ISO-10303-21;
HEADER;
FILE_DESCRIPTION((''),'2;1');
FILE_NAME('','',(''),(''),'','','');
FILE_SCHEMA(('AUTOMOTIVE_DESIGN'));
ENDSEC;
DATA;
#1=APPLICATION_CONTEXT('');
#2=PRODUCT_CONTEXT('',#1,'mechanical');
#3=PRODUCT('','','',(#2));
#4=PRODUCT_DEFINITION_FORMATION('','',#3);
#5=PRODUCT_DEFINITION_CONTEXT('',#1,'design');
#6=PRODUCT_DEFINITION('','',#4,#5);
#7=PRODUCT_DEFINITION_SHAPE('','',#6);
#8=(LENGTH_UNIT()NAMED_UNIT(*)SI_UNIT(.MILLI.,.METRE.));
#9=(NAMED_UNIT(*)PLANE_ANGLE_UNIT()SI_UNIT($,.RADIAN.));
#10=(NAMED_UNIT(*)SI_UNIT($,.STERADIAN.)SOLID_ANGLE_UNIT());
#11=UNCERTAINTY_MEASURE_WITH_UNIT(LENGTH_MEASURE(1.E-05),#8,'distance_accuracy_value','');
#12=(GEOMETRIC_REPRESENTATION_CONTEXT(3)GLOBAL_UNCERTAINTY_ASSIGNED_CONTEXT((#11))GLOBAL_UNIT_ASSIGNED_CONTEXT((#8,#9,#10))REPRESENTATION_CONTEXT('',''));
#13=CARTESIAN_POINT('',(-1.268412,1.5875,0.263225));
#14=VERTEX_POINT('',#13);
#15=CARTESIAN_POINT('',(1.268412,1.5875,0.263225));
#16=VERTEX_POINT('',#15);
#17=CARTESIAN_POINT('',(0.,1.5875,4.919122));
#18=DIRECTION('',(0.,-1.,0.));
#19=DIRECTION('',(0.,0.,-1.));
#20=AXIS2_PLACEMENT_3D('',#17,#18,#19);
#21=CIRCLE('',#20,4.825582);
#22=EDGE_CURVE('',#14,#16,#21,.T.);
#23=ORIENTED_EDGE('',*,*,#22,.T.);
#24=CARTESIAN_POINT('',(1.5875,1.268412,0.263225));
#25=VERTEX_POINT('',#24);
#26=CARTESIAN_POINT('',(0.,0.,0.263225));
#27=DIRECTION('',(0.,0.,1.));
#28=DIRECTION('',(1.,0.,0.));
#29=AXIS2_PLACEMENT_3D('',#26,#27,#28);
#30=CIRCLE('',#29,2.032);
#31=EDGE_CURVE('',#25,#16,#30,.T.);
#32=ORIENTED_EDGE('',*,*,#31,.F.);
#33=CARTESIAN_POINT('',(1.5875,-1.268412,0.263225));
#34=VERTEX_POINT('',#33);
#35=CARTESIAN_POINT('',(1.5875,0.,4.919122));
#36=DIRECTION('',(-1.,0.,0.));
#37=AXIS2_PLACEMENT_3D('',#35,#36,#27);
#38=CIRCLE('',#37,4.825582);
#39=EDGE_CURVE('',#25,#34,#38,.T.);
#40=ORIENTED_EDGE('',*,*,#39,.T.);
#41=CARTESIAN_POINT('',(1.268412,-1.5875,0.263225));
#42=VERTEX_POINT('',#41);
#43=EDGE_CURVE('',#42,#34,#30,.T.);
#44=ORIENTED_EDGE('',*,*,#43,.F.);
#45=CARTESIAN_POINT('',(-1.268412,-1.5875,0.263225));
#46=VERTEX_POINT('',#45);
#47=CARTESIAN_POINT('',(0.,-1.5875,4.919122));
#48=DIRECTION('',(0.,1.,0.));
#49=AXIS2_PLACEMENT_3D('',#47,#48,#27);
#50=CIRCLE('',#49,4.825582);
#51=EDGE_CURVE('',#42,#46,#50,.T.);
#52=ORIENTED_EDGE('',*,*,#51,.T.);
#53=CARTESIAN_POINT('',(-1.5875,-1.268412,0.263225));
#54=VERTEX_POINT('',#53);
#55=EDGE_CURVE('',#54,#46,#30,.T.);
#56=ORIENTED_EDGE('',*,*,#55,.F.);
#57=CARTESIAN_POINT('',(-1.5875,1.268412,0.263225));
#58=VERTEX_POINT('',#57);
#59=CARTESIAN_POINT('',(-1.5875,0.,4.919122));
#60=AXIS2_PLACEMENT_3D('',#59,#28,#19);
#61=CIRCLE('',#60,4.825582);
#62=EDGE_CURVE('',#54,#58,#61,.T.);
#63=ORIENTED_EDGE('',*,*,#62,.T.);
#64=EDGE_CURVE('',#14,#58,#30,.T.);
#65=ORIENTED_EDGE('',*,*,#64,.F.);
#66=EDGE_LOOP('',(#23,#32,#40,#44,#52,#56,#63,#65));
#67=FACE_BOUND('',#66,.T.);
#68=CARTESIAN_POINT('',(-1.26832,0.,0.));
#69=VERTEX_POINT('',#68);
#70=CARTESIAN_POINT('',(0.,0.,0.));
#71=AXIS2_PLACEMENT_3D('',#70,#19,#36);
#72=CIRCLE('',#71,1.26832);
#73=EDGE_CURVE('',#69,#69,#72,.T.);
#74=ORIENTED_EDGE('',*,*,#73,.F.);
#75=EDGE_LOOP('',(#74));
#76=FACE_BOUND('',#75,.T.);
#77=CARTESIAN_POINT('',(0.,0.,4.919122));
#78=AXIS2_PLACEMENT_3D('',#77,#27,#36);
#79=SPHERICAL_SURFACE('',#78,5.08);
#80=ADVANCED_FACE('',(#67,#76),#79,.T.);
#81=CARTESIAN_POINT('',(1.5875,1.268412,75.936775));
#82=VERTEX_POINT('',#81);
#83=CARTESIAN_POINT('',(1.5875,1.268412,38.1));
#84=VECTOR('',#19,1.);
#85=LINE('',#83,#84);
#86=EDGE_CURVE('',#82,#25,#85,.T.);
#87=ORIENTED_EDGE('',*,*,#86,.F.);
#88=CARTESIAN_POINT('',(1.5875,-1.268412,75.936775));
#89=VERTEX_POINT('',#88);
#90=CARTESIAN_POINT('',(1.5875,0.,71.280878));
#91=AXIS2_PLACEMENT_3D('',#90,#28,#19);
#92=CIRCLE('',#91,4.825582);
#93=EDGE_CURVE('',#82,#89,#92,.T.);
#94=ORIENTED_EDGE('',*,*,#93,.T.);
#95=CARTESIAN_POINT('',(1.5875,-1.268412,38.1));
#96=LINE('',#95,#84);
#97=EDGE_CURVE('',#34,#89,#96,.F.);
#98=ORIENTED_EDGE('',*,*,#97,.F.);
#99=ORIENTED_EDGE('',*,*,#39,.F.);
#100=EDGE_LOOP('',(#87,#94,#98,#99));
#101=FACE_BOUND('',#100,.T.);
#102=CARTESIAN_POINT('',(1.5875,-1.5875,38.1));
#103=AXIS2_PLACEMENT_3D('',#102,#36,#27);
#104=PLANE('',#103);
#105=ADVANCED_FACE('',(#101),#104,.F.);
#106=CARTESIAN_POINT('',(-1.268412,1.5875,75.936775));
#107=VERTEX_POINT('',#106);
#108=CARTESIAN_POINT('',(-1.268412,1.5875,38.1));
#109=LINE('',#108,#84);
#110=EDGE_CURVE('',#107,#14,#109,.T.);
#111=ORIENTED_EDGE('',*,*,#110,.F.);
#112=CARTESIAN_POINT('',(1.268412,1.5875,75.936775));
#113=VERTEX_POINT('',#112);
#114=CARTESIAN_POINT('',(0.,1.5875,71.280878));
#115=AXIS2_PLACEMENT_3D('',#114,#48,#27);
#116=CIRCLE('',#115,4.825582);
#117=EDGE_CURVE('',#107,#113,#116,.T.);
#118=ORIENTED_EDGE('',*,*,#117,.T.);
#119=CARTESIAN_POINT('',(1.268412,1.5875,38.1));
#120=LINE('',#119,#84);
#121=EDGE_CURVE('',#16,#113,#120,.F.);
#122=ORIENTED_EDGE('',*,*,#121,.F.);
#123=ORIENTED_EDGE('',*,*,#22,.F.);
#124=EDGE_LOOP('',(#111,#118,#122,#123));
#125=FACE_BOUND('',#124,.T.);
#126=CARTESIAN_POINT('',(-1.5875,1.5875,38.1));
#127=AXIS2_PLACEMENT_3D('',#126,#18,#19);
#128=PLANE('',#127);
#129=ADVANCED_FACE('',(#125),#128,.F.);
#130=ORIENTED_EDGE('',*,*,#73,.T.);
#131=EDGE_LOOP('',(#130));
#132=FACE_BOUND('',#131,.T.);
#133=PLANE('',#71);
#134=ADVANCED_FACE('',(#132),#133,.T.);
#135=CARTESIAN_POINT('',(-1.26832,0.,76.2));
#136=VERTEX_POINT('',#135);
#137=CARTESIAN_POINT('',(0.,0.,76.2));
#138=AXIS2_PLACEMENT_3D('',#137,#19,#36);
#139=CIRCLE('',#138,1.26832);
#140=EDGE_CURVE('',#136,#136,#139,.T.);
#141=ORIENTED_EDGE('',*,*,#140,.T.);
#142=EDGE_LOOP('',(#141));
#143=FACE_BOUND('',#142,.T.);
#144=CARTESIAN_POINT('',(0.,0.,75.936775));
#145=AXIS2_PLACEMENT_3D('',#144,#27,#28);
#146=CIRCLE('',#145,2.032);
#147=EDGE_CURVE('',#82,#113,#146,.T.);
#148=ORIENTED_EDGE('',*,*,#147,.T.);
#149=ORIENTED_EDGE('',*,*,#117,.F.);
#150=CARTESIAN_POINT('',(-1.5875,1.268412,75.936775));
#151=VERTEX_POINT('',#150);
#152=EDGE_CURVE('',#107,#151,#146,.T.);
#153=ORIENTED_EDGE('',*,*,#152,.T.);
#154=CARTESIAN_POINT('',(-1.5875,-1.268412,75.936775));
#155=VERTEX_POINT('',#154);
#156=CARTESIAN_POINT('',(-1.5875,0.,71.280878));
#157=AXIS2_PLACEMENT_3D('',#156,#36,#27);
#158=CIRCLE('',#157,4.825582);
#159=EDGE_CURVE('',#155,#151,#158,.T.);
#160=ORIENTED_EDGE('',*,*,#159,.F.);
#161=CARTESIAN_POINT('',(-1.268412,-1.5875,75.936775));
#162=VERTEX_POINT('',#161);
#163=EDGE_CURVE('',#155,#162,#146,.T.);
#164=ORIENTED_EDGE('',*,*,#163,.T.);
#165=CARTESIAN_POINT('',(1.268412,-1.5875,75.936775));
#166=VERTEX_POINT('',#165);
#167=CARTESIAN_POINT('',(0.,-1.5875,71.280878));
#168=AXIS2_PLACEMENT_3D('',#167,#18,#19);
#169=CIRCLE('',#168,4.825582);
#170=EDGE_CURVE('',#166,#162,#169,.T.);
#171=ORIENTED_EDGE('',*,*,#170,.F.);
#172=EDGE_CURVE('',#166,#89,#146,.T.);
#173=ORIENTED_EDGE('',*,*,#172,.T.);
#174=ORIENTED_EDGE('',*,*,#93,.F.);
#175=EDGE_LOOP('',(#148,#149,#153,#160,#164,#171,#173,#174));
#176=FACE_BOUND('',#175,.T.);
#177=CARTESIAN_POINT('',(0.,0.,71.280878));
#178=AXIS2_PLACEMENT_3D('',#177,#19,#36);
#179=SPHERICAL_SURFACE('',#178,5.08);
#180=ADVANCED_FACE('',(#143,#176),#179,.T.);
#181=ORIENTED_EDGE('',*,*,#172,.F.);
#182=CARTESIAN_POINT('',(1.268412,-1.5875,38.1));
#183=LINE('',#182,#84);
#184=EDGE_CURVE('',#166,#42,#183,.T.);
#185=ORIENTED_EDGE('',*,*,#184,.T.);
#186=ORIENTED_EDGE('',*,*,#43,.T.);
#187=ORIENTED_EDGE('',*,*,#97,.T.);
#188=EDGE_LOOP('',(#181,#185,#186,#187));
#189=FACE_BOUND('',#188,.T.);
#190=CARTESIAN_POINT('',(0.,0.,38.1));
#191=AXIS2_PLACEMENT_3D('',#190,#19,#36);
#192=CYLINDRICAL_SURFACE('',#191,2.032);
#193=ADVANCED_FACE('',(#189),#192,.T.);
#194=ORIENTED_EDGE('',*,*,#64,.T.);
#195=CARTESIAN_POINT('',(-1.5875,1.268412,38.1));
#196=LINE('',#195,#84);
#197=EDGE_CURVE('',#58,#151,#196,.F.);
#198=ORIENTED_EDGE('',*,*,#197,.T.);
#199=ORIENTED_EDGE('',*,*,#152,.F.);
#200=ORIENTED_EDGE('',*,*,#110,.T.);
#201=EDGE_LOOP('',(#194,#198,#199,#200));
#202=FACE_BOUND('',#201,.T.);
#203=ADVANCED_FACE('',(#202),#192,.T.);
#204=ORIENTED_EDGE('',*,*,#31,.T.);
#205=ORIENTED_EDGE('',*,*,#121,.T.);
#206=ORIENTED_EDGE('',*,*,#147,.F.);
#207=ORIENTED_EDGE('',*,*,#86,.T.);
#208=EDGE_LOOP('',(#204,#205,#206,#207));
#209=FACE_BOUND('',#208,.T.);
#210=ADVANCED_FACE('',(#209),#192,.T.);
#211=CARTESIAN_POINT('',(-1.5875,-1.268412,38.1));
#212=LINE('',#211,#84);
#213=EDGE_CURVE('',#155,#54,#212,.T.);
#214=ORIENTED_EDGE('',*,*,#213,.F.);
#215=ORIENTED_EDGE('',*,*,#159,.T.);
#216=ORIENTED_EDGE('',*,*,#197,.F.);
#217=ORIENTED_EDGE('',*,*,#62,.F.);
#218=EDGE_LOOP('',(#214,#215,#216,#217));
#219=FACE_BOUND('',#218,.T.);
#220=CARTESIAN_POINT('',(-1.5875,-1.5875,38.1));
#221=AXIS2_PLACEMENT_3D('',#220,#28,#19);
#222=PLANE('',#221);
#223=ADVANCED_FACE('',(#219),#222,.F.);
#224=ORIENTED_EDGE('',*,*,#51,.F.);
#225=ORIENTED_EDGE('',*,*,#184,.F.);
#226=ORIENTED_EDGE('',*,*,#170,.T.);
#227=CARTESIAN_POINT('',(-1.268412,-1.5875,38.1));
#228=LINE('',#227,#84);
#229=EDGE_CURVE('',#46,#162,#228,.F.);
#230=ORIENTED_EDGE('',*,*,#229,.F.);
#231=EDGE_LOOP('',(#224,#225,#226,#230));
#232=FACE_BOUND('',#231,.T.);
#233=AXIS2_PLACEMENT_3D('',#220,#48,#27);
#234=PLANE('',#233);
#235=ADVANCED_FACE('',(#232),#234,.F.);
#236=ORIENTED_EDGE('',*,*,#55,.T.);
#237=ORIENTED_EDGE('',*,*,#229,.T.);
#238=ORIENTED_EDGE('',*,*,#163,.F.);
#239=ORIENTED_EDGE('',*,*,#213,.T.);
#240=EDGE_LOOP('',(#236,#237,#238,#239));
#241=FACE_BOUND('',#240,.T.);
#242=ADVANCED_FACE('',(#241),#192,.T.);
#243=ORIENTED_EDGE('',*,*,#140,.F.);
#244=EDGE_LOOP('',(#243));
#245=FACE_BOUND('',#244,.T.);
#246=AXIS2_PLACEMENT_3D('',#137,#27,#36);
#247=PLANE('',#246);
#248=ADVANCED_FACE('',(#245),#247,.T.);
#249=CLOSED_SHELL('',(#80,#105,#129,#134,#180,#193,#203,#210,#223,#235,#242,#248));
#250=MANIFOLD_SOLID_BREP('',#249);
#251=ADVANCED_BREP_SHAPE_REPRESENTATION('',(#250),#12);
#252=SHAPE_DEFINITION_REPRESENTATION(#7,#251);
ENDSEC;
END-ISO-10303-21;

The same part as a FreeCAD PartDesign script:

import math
import FreeCAD as App
import Part
import Sketcher

V = App.Vector
Q = App.Units.Quantity


def add_polygon(sketch, points):
    """Adds a closed chain of lines whose ends are joined by coincident constraints."""
    first, n = sketch.GeometryCount, len(points)
    for a, b in zip(points, points[1:] + points[:1]):
        sketch.addGeometry(Part.LineSegment(App.Vector(*a, 0), App.Vector(*b, 0)), False)
    for i in range(n):
        sketch.addConstraint(Sketcher.Constraint("Coincident", first + i, 2, first + (i + 1) % n, 1))

doc = App.newDocument("Part")
body = doc.addObject("PartDesign::Body", "Body")

# Sketch on XY plane
sketch1 = body.newObject("Sketcher::SketchObject", "Sketch")
sketch1.AttachmentSupport = (doc.getObject("XY_Plane"), [""])
sketch1.MapMode = "FlatFace"
add_polygon(sketch1, [(-1.6, 1.6), (-1.6, -1.6), (1.6, -1.6), (1.6, 1.6)])  # lines 0-3
sketch1.addConstraint([
    Sketcher.Constraint("Vertical", 0),
    Sketcher.Constraint("Horizontal", 1),
    Sketcher.Constraint("Vertical", 2),
    Sketcher.Constraint("Horizontal", 3),
    Sketcher.Constraint("Symmetric", 0, 2, 2, 2, -1, 1),
    Sketcher.Constraint("Equal", 3, 0),
    Sketcher.Constraint("DistanceX", 1, 1, 1, 2, Q("0.125 in")),
])
pad1 = body.newObject("PartDesign::Pad", "Pad")
pad1.Profile = sketch1
pad1.Length = Q("1.5 in")

# Sketch on XY plane
sketch2 = body.newObject("Sketcher::SketchObject", "Sketch001")
sketch2.AttachmentSupport = (doc.getObject("XY_Plane"), [""])
sketch2.MapMode = "FlatFace"
add_polygon(sketch2, [(6.4, 6.4), (6.4, -6.4), (-6.4, -6.4), (-6.4, 6.4)])  # lines 0-3
sketch2.addGeometry(Part.Circle(V(0, 0, 0), V(0, 0, 1), 2), False)  # 4
sketch2.addConstraint([
    Sketcher.Constraint("Vertical", 0),
    Sketcher.Constraint("Horizontal", 1),
    Sketcher.Constraint("Vertical", 2),
    Sketcher.Constraint("Horizontal", 3),
    Sketcher.Constraint("Coincident", 4, 3, -1, 1),
    Sketcher.Constraint("Diameter", 4, Q("0.16 in")),
    Sketcher.Constraint("DistanceX", 1, 2, 1, 1, Q("12.848 mm")),
    Sketcher.Constraint("DistanceY", 0, 2, 0, 1, Q("12.847 mm")),
    Sketcher.Constraint("DistanceX", -1, 1, 0, 2, Q("6.424 mm")),
    Sketcher.Constraint("DistanceY", 0, 2, -1, 1, Q("6.424 mm")),
])
pocket1 = body.newObject("PartDesign::Pocket", "Pocket")
pocket1.Profile = sketch2
pocket1.Type = "ThroughAll"
pocket1.Reversed = True

# Sketch on XZ plane
sketch3 = body.newObject("Sketcher::SketchObject", "Sketch002")
sketch3.AttachmentSupport = (doc.getObject("XZ_Plane"), [""])
sketch3.MapMode = "FlatFace"
sketch3.addGeometry([
    Part.LineSegment(V(-5, -6, 0), V(-5, 4, 0)),
    Part.ArcOfCircle(Part.Circle(V(0, 5, 0), V(0, 0, 1), 5), math.radians(-174), math.radians(-90)),
    Part.LineSegment(V(0, 0, 0), V(0, -6, 0)),
    Part.LineSegment(V(0, -6, 0), V(-5, -6, 0)),
], False)
sketch3.addConstraint([
    Sketcher.Constraint("Coincident", 0, 2, 1, 1),
    Sketcher.Constraint("Coincident", 1, 2, 2, 1),
    Sketcher.Constraint("Coincident", 2, 2, 3, 1),
    Sketcher.Constraint("Coincident", 3, 2, 0, 1),
    Sketcher.Constraint("Vertical", 0),
    Sketcher.Constraint("Vertical", 2),
    Sketcher.Constraint("Horizontal", 3),
    Sketcher.Constraint("PointOnObject", 1, 3, -2),
    Sketcher.Constraint("PointOnObject", 1, 2, -2),
    Sketcher.Constraint("Radius", 1, Q("0.2 in")),
    Sketcher.Constraint("DistanceX", 3, 2, 3, 1, Q("5.053686 mm")),
    Sketcher.Constraint("DistanceY", 0, 1, 0, 2, Q("10.143263 mm")),
    Sketcher.Constraint("DistanceY", 2, 2, -1, 1, Q("5.740531 mm")),
])
groove = body.newObject("PartDesign::Groove", "Groove")
groove.Profile = sketch3
groove.ReferenceAxis = (sketch3, ["V_Axis"])
groove.Angle = 360
body2 = doc.addObject("PartDesign::Body", "Body001")
doc.recompute()

body2.BaseFeature = body
doc.recompute()

mirroring = doc.addObject("Part::Mirroring", "Mirroring")
mirroring.Source = body
mirroring.Base = V(0, 0, 38.1)
mirroring.Normal = V(0, 0, -1)
body3 = doc.addObject("PartDesign::Body", "Body002")
body3.BaseFeature = mirroring
boolean = body2.newObject("PartDesign::Boolean", "Boolean")
boolean.Type = "Fuse"
boolean.addObjects([body3])
doc.recompute()
mirroring.Visibility = False

doc.recompute()
